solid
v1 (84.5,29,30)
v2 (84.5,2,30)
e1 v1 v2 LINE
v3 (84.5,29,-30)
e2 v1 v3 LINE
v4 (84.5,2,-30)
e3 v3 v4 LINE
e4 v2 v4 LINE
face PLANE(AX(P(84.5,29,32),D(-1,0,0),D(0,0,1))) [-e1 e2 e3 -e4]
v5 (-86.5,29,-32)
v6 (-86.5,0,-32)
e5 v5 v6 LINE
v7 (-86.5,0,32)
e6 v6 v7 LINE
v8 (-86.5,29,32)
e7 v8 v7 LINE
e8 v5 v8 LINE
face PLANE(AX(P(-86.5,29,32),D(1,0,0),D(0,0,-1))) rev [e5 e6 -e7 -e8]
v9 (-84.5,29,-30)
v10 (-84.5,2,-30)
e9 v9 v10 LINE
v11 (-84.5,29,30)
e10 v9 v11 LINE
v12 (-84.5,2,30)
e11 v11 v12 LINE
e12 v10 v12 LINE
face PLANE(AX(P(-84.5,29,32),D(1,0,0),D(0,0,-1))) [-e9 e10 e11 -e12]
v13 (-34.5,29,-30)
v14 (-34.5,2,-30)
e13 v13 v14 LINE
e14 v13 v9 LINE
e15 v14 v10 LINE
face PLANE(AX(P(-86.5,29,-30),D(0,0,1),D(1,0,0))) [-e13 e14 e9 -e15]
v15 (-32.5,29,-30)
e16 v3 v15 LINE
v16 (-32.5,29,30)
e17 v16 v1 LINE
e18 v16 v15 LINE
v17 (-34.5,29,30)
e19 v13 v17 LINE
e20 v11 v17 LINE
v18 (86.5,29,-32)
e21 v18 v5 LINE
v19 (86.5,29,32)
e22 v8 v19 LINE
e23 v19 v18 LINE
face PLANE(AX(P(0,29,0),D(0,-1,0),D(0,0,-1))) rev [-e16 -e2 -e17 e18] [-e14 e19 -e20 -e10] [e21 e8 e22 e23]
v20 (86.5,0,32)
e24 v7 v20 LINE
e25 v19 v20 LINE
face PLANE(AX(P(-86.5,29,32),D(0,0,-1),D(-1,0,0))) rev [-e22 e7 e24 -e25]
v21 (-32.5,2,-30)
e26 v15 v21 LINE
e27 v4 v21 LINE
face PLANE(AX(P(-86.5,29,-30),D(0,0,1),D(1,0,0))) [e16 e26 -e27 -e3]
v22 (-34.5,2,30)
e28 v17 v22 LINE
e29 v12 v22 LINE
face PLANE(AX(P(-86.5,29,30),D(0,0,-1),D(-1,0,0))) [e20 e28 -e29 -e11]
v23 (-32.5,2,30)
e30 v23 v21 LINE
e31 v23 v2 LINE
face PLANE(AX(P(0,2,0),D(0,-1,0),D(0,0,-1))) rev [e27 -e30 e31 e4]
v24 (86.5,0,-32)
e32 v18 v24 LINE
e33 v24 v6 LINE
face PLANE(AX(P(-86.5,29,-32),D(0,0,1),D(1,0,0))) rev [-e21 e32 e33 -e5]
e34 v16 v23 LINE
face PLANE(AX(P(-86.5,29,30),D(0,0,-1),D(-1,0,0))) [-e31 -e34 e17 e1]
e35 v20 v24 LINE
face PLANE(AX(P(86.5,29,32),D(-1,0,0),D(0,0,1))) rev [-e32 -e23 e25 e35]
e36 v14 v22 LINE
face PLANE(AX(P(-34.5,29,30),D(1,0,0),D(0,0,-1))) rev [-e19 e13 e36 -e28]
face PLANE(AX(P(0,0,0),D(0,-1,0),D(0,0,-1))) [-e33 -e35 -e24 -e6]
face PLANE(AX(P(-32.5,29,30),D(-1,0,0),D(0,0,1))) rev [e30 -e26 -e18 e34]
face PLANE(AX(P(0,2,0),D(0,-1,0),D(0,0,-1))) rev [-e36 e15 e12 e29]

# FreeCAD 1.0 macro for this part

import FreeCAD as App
import Part
import Sketcher

V = App.Vector
Q = App.Units.Quantity


def faces_at(feature, points):
    """Names of the faces that lie closest to the given points."""
    faces = feature.Shape.Faces
    near = lambda p: min(range(len(faces)), key=lambda i: faces[i].distToShape(Part.Vertex(*p))[0])
    return sorted({f"Face{near(p) + 1}" for p in points})

doc = App.newDocument("Part")
body = doc.addObject("PartDesign::Body", "Body")

# Sketch on XZ plane
sketch1 = doc.addObject("Sketcher::SketchObject", "Sketch")
body.addObject(sketch1)
sketch1.AttachmentSupport = (doc.XZ_Plane, [""])
sketch1.MapMode = "FlatFace"
sketch1.addGeometry([
    Part.LineSegment(V(-86, -32, 0), V(-86, 32, 0)),
    Part.LineSegment(V(-86, 32, 0), V(86, 32, 0)),
    Part.LineSegment(V(86, 32, 0), V(86, -32, 0)),
    Part.LineSegment(V(86, -32, 0), V(-86, -32, 0)),
], False)
sketch1.addConstraint([
    Sketcher.Constraint("Coincident", 0, 2, 1, 1),
    Sketcher.Constraint("Coincident", 1, 2, 2, 1),
    Sketcher.Constraint("Coincident", 2, 2, 3, 1),
    Sketcher.Constraint("Coincident", 3, 2, 0, 1),
    Sketcher.Constraint("Vertical", 0),
    Sketcher.Constraint("Horizontal", 1),
    Sketcher.Constraint("Vertical", 2),
    Sketcher.Constraint("Horizontal", 3),
    Sketcher.Constraint("Symmetric", 0, 2, 2, 2, -1, 1),
    Sketcher.Constraint("DistanceX", 1, 1, 1, 2, Q("173 mm")),
    Sketcher.Constraint("DistanceY", 0, 1, 0, 2, Q("64 mm")),
])
pad1 = doc.addObject("PartDesign::Pad", "Pad")
body.addObject(pad1)
pad1.Profile = sketch1
pad1.Length = 29
pad1.Reversed = True
doc.recompute()

thickness = doc.addObject("PartDesign::Thickness", "Thickness")
body.addObject(thickness)
thickness.Base = (pad1, faces_at(pad1, [(0, 29, 0)]))
thickness.Value = 2
thickness.Reversed = True
thickness.Join = "Intersection"

# Sketch on XZ plane
sketch2 = doc.addObject("Sketcher::SketchObject", "Sketch001")
body.addObject(sketch2)
sketch2.AttachmentSupport = (doc.XZ_Plane, [""])
sketch2.MapMode = "FlatFace"
sketch2.AttachmentOffset = App.Placement(V(0, 0, -2), App.Rotation())
sketch2.addGeometry([
    Part.LineSegment(V(-34.5, -30, 0), V(-34.5, 30, 0)),
    Part.LineSegment(V(-34.5, 30, 0), V(-32.5, 30, 0)),
    Part.LineSegment(V(-32.5, 30, 0), V(-32.5, -30, 0)),
    Part.LineSegment(V(-32.5, -30, 0), V(-34.5, -30, 0)),
], False)
sketch2.addConstraint([
    Sketcher.Constraint("Coincident", 0, 2, 1, 1),
    Sketcher.Constraint("Coincident", 1, 2, 2, 1),
    Sketcher.Constraint("Coincident", 2, 2, 3, 1),
    Sketcher.Constraint("Coincident", 3, 2, 0, 1),
    Sketcher.Constraint("Vertical", 0),
    Sketcher.Constraint("Horizontal", 1),
    Sketcher.Constraint("Vertical", 2),
    Sketcher.Constraint("Horizontal", 3),
    Sketcher.Constraint("DistanceX", 1, 1, 1, 2, Q("2 mm")),
    Sketcher.Constraint("DistanceY", 0, 1, 0, 2, Q("60 mm")),
    Sketcher.Constraint("DistanceY", -1, 1, 0, 2, Q("30 mm")),
    Sketcher.Constraint("DistanceX", 0, 2, -1, 1, Q("34.5 mm")),
])
pad2 = doc.addObject("PartDesign::Pad", "Pad001")
body.addObject(pad2)
pad2.Profile = sketch2
pad2.Length = 27
pad2.Reversed = True

doc.recompute()
